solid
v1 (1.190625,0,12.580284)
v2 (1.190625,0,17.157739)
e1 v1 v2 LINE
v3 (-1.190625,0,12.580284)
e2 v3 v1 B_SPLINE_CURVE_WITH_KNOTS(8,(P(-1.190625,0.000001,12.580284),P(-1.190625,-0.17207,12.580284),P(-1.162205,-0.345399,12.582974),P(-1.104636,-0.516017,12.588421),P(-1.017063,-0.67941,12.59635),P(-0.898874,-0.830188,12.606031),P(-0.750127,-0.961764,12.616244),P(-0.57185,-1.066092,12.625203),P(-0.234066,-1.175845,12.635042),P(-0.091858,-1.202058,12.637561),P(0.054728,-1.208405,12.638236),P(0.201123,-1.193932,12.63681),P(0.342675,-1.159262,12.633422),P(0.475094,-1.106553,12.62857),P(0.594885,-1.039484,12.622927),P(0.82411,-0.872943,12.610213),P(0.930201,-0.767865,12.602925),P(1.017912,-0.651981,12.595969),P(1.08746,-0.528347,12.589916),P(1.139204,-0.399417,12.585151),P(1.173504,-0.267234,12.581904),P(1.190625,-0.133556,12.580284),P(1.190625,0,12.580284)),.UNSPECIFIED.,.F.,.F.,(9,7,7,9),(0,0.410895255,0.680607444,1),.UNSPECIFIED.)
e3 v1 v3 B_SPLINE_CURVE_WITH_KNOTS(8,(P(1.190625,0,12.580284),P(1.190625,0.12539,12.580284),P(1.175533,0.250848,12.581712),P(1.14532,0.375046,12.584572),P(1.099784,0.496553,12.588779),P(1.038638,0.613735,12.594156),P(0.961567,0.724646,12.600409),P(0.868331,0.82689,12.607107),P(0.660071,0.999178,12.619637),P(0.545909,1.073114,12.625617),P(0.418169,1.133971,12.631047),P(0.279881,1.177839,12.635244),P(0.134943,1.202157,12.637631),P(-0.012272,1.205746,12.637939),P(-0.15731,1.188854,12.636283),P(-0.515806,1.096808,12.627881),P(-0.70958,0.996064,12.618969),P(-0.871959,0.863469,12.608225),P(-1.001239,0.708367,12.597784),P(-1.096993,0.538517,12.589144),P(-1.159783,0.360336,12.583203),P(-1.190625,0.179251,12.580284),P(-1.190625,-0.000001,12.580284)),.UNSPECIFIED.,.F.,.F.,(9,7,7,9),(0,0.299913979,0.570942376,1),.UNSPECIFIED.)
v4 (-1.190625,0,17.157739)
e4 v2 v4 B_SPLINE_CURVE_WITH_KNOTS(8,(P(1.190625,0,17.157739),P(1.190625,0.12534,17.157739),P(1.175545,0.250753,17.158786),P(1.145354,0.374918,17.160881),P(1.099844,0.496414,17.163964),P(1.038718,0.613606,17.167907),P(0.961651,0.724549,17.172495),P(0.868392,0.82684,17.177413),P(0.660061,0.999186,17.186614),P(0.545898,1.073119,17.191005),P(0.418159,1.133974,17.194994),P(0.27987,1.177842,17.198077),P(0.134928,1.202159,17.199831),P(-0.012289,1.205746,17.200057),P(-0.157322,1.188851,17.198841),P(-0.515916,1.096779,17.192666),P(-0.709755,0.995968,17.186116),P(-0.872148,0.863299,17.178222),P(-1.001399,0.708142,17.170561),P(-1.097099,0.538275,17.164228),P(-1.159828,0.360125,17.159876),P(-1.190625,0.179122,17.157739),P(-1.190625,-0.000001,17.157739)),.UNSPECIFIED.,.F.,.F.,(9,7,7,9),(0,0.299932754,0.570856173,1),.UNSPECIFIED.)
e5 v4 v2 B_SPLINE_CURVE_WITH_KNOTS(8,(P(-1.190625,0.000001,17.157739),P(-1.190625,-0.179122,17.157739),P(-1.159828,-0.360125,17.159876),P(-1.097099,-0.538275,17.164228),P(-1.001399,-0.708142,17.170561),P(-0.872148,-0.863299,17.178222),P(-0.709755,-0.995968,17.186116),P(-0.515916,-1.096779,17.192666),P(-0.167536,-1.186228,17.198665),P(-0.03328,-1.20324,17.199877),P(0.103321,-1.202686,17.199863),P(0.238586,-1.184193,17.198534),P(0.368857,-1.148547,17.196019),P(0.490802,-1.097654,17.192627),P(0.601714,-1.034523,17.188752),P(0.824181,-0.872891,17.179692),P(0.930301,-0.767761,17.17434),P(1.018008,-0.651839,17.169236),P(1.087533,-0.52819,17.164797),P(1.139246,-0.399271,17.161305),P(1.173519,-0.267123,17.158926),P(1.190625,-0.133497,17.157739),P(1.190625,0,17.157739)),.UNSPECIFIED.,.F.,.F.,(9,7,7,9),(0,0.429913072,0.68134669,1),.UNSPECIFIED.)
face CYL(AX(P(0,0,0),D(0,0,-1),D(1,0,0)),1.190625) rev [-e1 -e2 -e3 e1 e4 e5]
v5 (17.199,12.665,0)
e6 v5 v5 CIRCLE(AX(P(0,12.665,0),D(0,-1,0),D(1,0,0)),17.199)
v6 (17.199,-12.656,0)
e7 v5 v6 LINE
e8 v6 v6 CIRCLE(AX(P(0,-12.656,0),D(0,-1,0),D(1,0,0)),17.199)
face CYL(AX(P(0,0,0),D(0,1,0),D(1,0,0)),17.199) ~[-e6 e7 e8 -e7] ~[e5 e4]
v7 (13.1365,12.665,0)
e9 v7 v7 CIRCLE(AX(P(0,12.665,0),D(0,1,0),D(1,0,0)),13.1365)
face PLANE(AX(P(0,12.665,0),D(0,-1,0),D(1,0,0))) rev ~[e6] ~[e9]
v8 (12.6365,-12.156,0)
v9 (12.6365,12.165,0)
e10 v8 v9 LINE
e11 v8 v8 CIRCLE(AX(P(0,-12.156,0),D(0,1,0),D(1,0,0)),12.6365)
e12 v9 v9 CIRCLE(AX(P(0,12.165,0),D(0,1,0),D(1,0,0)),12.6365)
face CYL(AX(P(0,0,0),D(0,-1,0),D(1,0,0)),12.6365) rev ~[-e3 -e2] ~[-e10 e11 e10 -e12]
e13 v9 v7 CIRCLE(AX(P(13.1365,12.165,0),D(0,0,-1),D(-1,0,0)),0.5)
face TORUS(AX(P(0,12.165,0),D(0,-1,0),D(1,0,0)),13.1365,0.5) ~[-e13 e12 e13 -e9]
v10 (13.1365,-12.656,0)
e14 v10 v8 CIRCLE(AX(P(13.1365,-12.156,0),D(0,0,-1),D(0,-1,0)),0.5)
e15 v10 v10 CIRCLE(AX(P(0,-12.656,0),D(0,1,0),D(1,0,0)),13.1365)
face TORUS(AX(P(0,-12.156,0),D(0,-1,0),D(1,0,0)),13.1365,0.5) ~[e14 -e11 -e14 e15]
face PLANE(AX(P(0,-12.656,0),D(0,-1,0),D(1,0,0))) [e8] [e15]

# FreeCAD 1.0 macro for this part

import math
import FreeCAD as App
import Part
import Sketcher
from FreeCAD import Vector
Q = App.Units.Quantity

doc = App.newDocument("Part")
body = doc.addObject("PartDesign::Body", "Body")

# Sketch on XY plane
sketch1 = body.newObject("Sketcher::SketchObject", "Sketch")
sketch1.AttachmentSupport = (doc.getObject("XY_Plane"), [""])
sketch1.MapMode = "FlatFace"
sketch1.addGeometry(Part.LineSegment(Vector(13.1365, 12.665, 0), Vector(17.399, 12.665, 0)), False)
sketch1.addGeometry(Part.LineSegment(Vector(17.399, 12.665, 0), Vector(17.399, 14.165, 0)), False)
sketch1.addGeometry(Part.LineSegment(Vector(17.399, 14.165, 0), Vector(11.1365, 14.165, 0)), False)
sketch1.addGeometry(Part.LineSegment(Vector(11.1365, 14.165, 0), Vector(11.1365, -14.156, 0)), False)
sketch1.addGeometry(Part.LineSegment(Vector(11.1365, -14.156, 0), Vector(17.399, -14.156, 0)), False)
sketch1.addGeometry(Part.LineSegment(Vector(17.399, -14.156, 0), Vector(17.399, -12.656, 0)), False)
sketch1.addGeometry(Part.LineSegment(Vector(17.399, -12.656, 0), Vector(13.1365, -12.656, 0)), False)
sketch1.addGeometry(Part.ArcOfCircle(Part.Circle(Vector(13.1365, -12.156, 0), Vector(0, 0, 1), 0.5), math.radians(180), math.radians(270)), False)
sketch1.addGeometry(Part.LineSegment(Vector(12.6365, -12.156, 0), Vector(12.6365, 12.165, 0)), False)
sketch1.addGeometry(Part.ArcOfCircle(Part.Circle(Vector(13.1365, 12.165, 0), Vector(0, 0, 1), 0.5), math.radians(90), math.radians(180)), False)
sketch1.addConstraint(Sketcher.Constraint("Coincident", 0, 2, 1, 1))
sketch1.addConstraint(Sketcher.Constraint("Coincident", 1, 2, 2, 1))
sketch1.addConstraint(Sketcher.Constraint("Coincident", 2, 2, 3, 1))
sketch1.addConstraint(Sketcher.Constraint("Coincident", 3, 2, 4, 1))
sketch1.addConstraint(Sketcher.Constraint("Coincident", 4, 2, 5, 1))
sketch1.addConstraint(Sketcher.Constraint("Coincident", 5, 2, 6, 1))
sketch1.addConstraint(Sketcher.Constraint("Tangent", 6, 2, 7, 2))
sketch1.addConstraint(Sketcher.Constraint("Tangent", 7, 1, 8, 1))
sketch1.addConstraint(Sketcher.Constraint("Tangent", 8, 2, 9, 2))
sketch1.addConstraint(Sketcher.Constraint("Tangent", 9, 1, 0, 1))
sketch1.addConstraint(Sketcher.Constraint("Horizontal", 0))
sketch1.addConstraint(Sketcher.Constraint("Vertical", 1))
sketch1.addConstraint(Sketcher.Constraint("Horizontal", 2))
sketch1.addConstraint(Sketcher.Constraint("Vertical", 3))
sketch1.addConstraint(Sketcher.Constraint("Horizontal", 4))
sketch1.addConstraint(Sketcher.Constraint("Vertical", 5))
sketch1.addConstraint(Sketcher.Constraint("Horizontal", 6))
sketch1.addConstraint(Sketcher.Constraint("Vertical", 8))
sketch1.addConstraint(Sketcher.Constraint("Equal", 7, 9))
sketch1.addConstraint(Sketcher.Constraint("Vertical", 1, 2, 4, 2))
sketch1.addConstraint(Sketcher.Constraint("Equal", 1, 5))
sketch1.addConstraint(Sketcher.Constraint("Radius", 7, Q("0.5 mm")))
sketch1.addConstraint(Sketcher.Constraint("DistanceY", 1, 1, 1, 2, Q("1.5 mm")))
sketch1.addConstraint(Sketcher.Constraint("DistanceX", 2, 2, 9, 3, Q("2 mm")))
sketch1.addConstraint(Sketcher.Constraint("DistanceY", 3, 2, 3, 1, Q("28.321 mm")))
sketch1.addConstraint(Sketcher.Constraint("DistanceX", 0, 1, 0, 2, Q("4.2625 mm")))
sketch1.addConstraint(Sketcher.Constraint("DistanceY", 7, 3, -1, 1, Q("12.156 mm")))
sketch1.addConstraint(Sketcher.Constraint("DistanceX", -1, 1, 0, 2, Q("17.399 mm")))
revolution = body.newObject("PartDesign::Revolution", "Revolution")
revolution.Profile = sketch1
revolution.ReferenceAxis = (sketch1, ["V_Axis"])
revolution.Angle = 360
body2 = doc.addObject("PartDesign::Body", "Body001")

# Sketch on XZ plane
sketch2 = body2.newObject("Sketcher::SketchObject", "Sketch001")
sketch2.AttachmentSupport = (doc.getObject("XZ_Plane001"), [""])
sketch2.MapMode = "FlatFace"
sketch2.addGeometry(Part.Circle(Vector(0, 0, 0), Vector(0, 0, 1), 17.199), False)
sketch2.addGeometry(Part.Circle(Vector(0, 0, 0), Vector(0, 0, 1), 12.6365), False)
sketch2.addConstraint(Sketcher.Constraint("Coincident", 0, 3, -1, 1))
sketch2.addConstraint(Sketcher.Constraint("Coincident", 1, 3, -1, 1))
sketch2.addConstraint(Sketcher.Constraint("Diameter", 0, Q("34.398 mm")))
sketch2.addConstraint(Sketcher.Constraint("Diameter", 1, Q("25.273 mm")))
pad1 = body2.newObject("PartDesign::Pad", "Pad")
pad1.Profile = sketch2
pad1.Type = "TwoLengths"
pad1.Length = 12.665
pad1.Length2 = 12.656
pad1.Reversed = True
doc.recompute()

boolean = body2.newObject("PartDesign::Boolean", "Boolean")
boolean.Type = "Cut"
boolean.addObjects([body])

# Sketch on XY plane
sketch3 = body2.newObject("Sketcher::SketchObject", "Sketch002")
sketch3.AttachmentSupport = (doc.getObject("XY_Plane001"), [""])
sketch3.MapMode = "FlatFace"
sketch3.addGeometry(Part.Circle(Vector(0, 0, 0), Vector(0, 0, 1), 1.190625), False)
sketch3.addConstraint(Sketcher.Constraint("Coincident", 0, 3, -1, 1))
sketch3.addConstraint(Sketcher.Constraint("Diameter", 0, Q("2.38125 mm")))
pocket1 = body2.newObject("PartDesign::Pocket", "Pocket")
pocket1.Profile = sketch3
pocket1.Type = "ThroughAll"
pocket1.Reversed = True

doc.recompute()
